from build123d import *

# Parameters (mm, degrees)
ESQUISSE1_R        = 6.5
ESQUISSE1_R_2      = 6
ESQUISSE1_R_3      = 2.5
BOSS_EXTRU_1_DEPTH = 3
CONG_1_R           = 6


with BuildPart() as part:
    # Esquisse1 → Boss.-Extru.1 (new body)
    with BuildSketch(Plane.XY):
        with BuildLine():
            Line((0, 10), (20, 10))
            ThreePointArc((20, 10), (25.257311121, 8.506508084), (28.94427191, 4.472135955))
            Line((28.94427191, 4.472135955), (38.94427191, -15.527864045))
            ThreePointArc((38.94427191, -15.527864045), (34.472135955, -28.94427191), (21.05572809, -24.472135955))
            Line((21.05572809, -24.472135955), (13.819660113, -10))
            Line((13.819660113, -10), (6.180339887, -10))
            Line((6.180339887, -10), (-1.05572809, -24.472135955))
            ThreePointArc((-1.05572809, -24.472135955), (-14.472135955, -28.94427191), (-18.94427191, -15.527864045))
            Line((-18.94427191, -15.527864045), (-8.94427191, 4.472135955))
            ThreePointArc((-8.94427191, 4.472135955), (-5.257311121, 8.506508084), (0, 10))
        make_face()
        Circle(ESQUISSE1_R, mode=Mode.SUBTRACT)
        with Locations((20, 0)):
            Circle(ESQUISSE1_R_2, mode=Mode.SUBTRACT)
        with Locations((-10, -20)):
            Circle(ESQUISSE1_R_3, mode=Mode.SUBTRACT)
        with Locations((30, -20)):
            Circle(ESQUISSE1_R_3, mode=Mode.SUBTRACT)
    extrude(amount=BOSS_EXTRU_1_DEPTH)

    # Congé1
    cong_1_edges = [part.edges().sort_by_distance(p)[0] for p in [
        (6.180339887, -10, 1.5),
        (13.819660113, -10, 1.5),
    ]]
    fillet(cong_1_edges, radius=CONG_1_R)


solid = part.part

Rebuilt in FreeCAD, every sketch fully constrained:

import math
import FreeCAD as App
import Part
import Sketcher
Q = App.Units.Quantity


def edges_at(feature, points):
    """Names of the edges that pass closest to the given points."""
    edges = feature.Shape.Edges
    near = lambda p: min(range(len(edges)), key=lambda i: edges[i].distToShape(Part.Vertex(*p))[0])
    return sorted({f"Edge{near(p) + 1}" for p in points})

doc = App.newDocument("Part")
body = doc.addObject("PartDesign::Body", "Body")

# Sketch on XY plane
sketch1 = doc.addObject("Sketcher::SketchObject", "Sketch")
body.addObject(sketch1)
sketch1.AttachmentSupport = (doc.XY_Plane, [""])
sketch1.MapMode = "FlatFace"
sketch1.addGeometry([
    Part.LineSegment(App.Vector(20, 10, 0), App.Vector(0, 10, 0)),  # 0
    Part.ArcOfCircle(Part.Circle(App.Vector(0, 0, 0), App.Vector(0, 0, 1), 10), math.radians(90), math.radians(153.434949)),  # 1
    Part.LineSegment(App.Vector(-8.944272, 4.472136, 0), App.Vector(-18.944272, -15.527864, 0)),  # 2
    Part.ArcOfCircle(Part.Circle(App.Vector(-10, -20, 0), App.Vector(0, 0, 1), 10), math.radians(153.434949), math.radians(333.434949)),  # 3
    Part.LineSegment(App.Vector(-1.055728, -24.472136, 0), App.Vector(6.18034, -10, 0)),  # 4
    Part.LineSegment(App.Vector(6.18034, -10, 0), App.Vector(13.81966, -10, 0)),  # 5
    Part.LineSegment(App.Vector(13.81966, -10, 0), App.Vector(21.055728, -24.472136, 0)),  # 6
    Part.ArcOfCircle(Part.Circle(App.Vector(30, -20, 0), App.Vector(0, 0, 1), 10), math.radians(-153.434949), math.radians(26.565051)),  # 7
    Part.LineSegment(App.Vector(38.944272, -15.527864, 0), App.Vector(28.944272, 4.472136, 0)),  # 8
    Part.ArcOfCircle(Part.Circle(App.Vector(20, 0, 0), App.Vector(0, 0, 1), 10), math.radians(26.565051), math.radians(90)),  # 9
    Part.Circle(App.Vector(30, -20, 0), App.Vector(0, 0, 1), 2.5),  # 10
    Part.Circle(App.Vector(-10, -20, 0), App.Vector(0, 0, 1), 2.5),  # 11
    Part.Circle(App.Vector(20, 0, 0), App.Vector(0, 0, 1), 6),  # 12
    Part.Circle(App.Vector(0, 0, 0), App.Vector(0, 0, 1), 6.5),  # 13
], False)
sketch1.addConstraint([
    Sketcher.Constraint("Tangent", 0, 2, 1, 1),
    Sketcher.Constraint("Tangent", 1, 2, 2, 1),
    Sketcher.Constraint("Tangent", 2, 2, 3, 1),
    Sketcher.Constraint("Tangent", 3, 2, 4, 1),
    Sketcher.Constraint("Coincident", 4, 2, 5, 1),
    Sketcher.Constraint("Coincident", 5, 2, 6, 1),
    Sketcher.Constraint("Tangent", 6, 2, 7, 1),
    Sketcher.Constraint("Tangent", 7, 2, 8, 1),
    Sketcher.Constraint("Tangent", 8, 2, 9, 1),
    Sketcher.Constraint("Tangent", 9, 2, 0, 1),
    Sketcher.Constraint("Horizontal", 0),
    Sketcher.Constraint("Horizontal", 5),
    Sketcher.Constraint("Coincident", 1, 3, -1, 1),
    Sketcher.Constraint("Coincident", 13, 3, -1, 1),
    Sketcher.Constraint("Coincident", 10, 3, 7, 3),
    Sketcher.Constraint("Coincident", 11, 3, 3, 3),
    Sketcher.Constraint("Coincident", 12, 3, 9, 3),
    Sketcher.Constraint("Equal", 1, 3),
    Sketcher.Constraint("Equal", 3, 7),
    Sketcher.Constraint("Equal", 7, 9),
    Sketcher.Constraint("Equal", 10, 11),
    Sketcher.Constraint("Parallel", 2, 4),
    Sketcher.Constraint("Parallel", 6, 8),
    Sketcher.Constraint("Horizontal", 3, 3, 7, 3),
    Sketcher.Constraint("Horizontal", 3, 2, 6, 2),
    Sketcher.Constraint("Diameter", 10, Q("5 mm")),
    Sketcher.Constraint("Diameter", 12, Q("12 mm")),
    Sketcher.Constraint("Diameter", 13, Q("13 mm")),
    Sketcher.Constraint("Radius", 1, Q("10 mm")),
    Sketcher.Constraint("DistanceX", 0, 2, 0, 1, Q("20 mm")),
    Sketcher.Constraint("DistanceX", 3, 3, -1, 1, Q("10 mm")),
    Sketcher.Constraint("DistanceY", 3, 3, -1, 1, Q("20 mm")),
    Sketcher.Constraint("DistanceY", 4, 2, -1, 1, Q("10 mm")),
])
pad1 = doc.addObject("PartDesign::Pad", "Pad")
body.addObject(pad1)
pad1.Profile = sketch1
pad1.Length = 3
doc.recompute()

fillet = doc.addObject("PartDesign::Fillet", "Fillet")
body.addObject(fillet)
fillet.Base = (pad1, edges_at(pad1, [(6.18, -10, 1.5), (13.82, -10, 1.5)]))
fillet.Radius = 6

doc.recompute()
